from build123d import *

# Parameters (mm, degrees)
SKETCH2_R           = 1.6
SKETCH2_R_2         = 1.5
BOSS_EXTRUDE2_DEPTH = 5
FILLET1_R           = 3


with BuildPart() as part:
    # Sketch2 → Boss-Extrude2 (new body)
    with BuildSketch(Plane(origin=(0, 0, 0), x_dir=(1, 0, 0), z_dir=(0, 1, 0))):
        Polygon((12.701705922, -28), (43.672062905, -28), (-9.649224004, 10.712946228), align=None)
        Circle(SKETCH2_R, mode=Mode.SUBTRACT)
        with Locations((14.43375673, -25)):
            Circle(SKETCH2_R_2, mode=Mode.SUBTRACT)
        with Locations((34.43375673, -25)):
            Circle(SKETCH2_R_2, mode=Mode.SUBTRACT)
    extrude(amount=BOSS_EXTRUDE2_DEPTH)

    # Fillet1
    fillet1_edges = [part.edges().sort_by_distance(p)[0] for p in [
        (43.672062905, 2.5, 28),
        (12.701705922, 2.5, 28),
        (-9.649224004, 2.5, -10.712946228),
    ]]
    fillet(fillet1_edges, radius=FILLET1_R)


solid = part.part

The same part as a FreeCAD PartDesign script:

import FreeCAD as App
import Part
import Sketcher
Q = App.Units.Quantity


def edges_at(feature, points):
    """Names of the edges that pass closest to the given points."""
    edges = feature.Shape.Edges
    near = lambda p: min(range(len(edges)), key=lambda i: edges[i].distToShape(Part.Vertex(*p))[0])
    return sorted({f"Edge{near(p) + 1}" for p in points})


def add_polygon(sketch, points):
    """Adds a closed chain of lines whose ends are joined by coincident constraints."""
    first, n = sketch.GeometryCount, len(points)
    for a, b in zip(points, points[1:] + points[:1]):
        sketch.addGeometry(Part.LineSegment(App.Vector(*a, 0), App.Vector(*b, 0)), False)
    for i in range(n):
        sketch.addConstraint(Sketcher.Constraint("Coincident", first + i, 2, first + (i + 1) % n, 1))

doc = App.newDocument("Part")
body = doc.addObject("PartDesign::Body", "Body")

# Sketch on XZ plane
sketch1 = doc.addObject("Sketcher::SketchObject", "Sketch")
body.addObject(sketch1)
sketch1.AttachmentSupport = (doc.XZ_Plane, [""])
sketch1.MapMode = "FlatFace"
add_polygon(sketch1, [(12.701706, 28), (43.672063, 28), (-9.649224, -10.712946)])  # lines 0-2
sketch1.addGeometry(Part.Circle(App.Vector(14.433757, 25, 0), App.Vector(0, 0, 1), 1.5), False)  # 3
sketch1.addGeometry(Part.Circle(App.Vector(34.433757, 25, 0), App.Vector(0, 0, 1), 1.5), False)  # 4
sketch1.addGeometry(Part.Circle(App.Vector(0, 0, 0), App.Vector(0, 0, 1), 1.6), False)  # 5
sketch1.addConstraint([
    Sketcher.Constraint("Horizontal", 0),
    Sketcher.Constraint("Coincident", 5, 3, -1, 1),
    Sketcher.Constraint("Equal", 3, 4),
    Sketcher.Constraint("Horizontal", 3, 3, 4, 3),
    Sketcher.Constraint("Diameter", 3, Q("3 mm")),
    Sketcher.Constraint("Diameter", 5, Q("3.2 mm")),
    Sketcher.Constraint("Angle", 2, Q("60 deg")),
    Sketcher.Constraint("DistanceY", -1, 1, 3, 3, Q("25 mm")),
    Sketcher.Constraint("DistanceY", -1, 1, 0, 2, Q("28 mm")),
    Sketcher.Constraint("DistanceX", 3, 3, 4, 3, Q("20 mm")),
    Sketcher.Constraint("Distance", 1, Q("65.89273 mm")),
    Sketcher.Constraint("Distance", 2, Q("44.70186 mm")),
    Sketcher.Constraint("DistanceX", 1, 2, 3, 3, Q("24.082981 mm")),
    Sketcher.Constraint("DistanceX", -1, 1, 3, 3, Q("14.433757 mm")),
])
pad1 = doc.addObject("PartDesign::Pad", "Pad")
body.addObject(pad1)
pad1.Profile = sketch1
pad1.Length = 5
pad1.Reversed = True
doc.recompute()

fillet = doc.addObject("PartDesign::Fillet", "Fillet")
body.addObject(fillet)
fillet.Base = (pad1, edges_at(pad1, [(43.672, 2.5, 28), (12.702, 2.5, 28), (-9.649, 2.5, -10.713)]))
fillet.Radius = 3

doc.recompute()
